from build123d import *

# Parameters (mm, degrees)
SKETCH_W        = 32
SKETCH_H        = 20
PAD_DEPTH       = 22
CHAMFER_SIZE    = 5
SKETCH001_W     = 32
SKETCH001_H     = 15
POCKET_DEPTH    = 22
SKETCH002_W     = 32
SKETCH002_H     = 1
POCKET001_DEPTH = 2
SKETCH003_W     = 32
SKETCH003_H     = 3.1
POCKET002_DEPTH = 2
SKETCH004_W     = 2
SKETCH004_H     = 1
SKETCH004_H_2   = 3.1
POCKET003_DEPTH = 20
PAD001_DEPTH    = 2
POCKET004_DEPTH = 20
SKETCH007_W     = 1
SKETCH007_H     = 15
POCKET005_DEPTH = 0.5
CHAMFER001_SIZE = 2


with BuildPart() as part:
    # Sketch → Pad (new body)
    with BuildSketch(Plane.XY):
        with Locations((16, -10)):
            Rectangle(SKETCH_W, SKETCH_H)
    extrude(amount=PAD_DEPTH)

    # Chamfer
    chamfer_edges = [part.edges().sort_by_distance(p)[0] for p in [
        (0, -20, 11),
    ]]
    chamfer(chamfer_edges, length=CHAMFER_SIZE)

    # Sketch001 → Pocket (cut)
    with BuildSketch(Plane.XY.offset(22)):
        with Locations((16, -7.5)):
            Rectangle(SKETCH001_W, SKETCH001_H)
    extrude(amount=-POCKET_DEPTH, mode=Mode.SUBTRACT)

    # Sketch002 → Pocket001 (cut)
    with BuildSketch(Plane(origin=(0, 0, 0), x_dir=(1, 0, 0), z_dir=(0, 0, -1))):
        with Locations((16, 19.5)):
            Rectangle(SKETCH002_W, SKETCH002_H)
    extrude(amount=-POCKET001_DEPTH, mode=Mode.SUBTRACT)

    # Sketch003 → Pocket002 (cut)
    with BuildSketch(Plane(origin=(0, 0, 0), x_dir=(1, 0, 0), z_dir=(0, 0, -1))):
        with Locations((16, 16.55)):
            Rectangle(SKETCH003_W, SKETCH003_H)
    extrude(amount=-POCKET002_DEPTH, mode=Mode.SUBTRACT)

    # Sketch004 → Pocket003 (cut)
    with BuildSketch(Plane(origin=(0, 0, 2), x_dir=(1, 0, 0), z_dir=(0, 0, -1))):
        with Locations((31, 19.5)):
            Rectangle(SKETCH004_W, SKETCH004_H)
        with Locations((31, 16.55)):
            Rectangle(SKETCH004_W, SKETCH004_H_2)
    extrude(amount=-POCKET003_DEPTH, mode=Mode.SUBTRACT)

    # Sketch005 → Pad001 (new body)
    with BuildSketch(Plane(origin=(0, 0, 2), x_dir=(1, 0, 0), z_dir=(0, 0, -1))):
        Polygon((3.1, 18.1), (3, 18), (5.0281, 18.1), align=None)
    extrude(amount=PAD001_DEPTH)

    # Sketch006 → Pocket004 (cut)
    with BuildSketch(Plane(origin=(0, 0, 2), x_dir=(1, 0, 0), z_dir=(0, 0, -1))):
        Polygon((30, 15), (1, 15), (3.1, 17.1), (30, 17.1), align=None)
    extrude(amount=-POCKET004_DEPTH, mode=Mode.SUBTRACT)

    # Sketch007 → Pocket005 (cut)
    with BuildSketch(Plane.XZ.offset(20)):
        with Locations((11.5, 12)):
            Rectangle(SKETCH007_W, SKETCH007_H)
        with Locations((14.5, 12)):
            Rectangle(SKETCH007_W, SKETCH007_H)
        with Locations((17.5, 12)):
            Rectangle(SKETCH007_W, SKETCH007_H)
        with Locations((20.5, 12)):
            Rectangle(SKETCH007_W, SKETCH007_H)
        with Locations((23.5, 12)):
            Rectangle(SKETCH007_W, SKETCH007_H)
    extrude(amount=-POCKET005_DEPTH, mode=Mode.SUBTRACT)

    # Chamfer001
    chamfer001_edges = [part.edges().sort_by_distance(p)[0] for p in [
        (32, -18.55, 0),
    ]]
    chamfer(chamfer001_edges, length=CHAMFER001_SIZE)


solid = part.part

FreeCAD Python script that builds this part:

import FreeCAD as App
import Part
import Sketcher
Q = App.Units.Quantity


def edges_at(feature, points):
    """Names of the edges that pass closest to the given points."""
    edges = feature.Shape.Edges
    near = lambda p: min(range(len(edges)), key=lambda i: edges[i].distToShape(Part.Vertex(*p))[0])
    return sorted({f"Edge{near(p) + 1}" for p in points})

doc = App.newDocument("Part")
body = doc.addObject("PartDesign::Body", "Body")

sketch1 = body.newObject("Sketcher::SketchObject", "Sketch")
sketch1.AttachmentSupport = (doc.getObject("XY_Plane"), [""])
sketch1.MapMode = "FlatFace"
sketch1.addGeometry([
    Part.LineSegment(App.Vector(0, 0, 0), App.Vector(0, -20, 0)),
    Part.LineSegment(App.Vector(0, -20, 0), App.Vector(32, -20, 0)),
    Part.LineSegment(App.Vector(32, -20, 0), App.Vector(32, 0, 0)),
    Part.LineSegment(App.Vector(32, 0, 0), App.Vector(0, 0, 0)),
], False)
sketch1.addConstraint([
    Sketcher.Constraint("Coincident", 0, 2, 1, 1),
    Sketcher.Constraint("Coincident", 1, 2, 2, 1),
    Sketcher.Constraint("Coincident", 2, 2, 3, 1),
    Sketcher.Constraint("Coincident", 3, 2, 0, 1),
    Sketcher.Constraint("Vertical", 0),
    Sketcher.Constraint("Horizontal", 1),
    Sketcher.Constraint("Vertical", 2),
    Sketcher.Constraint("Horizontal", 3),
    Sketcher.Constraint("Coincident", 3, 2, -1, 1),
    Sketcher.Constraint("DistanceX", 1, 1, 1, 2, Q("32 mm")),
    Sketcher.Constraint("DistanceY", 0, 2, 0, 1, Q("20 mm")),
])
pad1 = body.newObject("PartDesign::Pad", "Pad")
pad1.Profile = sketch1
pad1.Length = 22
doc.recompute()

chamfer = body.newObject("PartDesign::Chamfer", "Chamfer")
chamfer.Base = (pad1, edges_at(pad1, [(0, -20, 11)]))
chamfer.Size = 5

sketch2 = body.newObject("Sketcher::SketchObject", "Sketch001")
sketch2.AttachmentSupport = (doc.getObject("XY_Plane"), [""])
sketch2.MapMode = "FlatFace"
sketch2.AttachmentOffset = App.Placement(App.Vector(0, 0, 22), App.Rotation())
sketch2.addGeometry([
    Part.LineSegment(App.Vector(0, 0, 0), App.Vector(0, -15, 0)),
    Part.LineSegment(App.Vector(0, -15, 0), App.Vector(32, -15, 0)),
    Part.LineSegment(App.Vector(32, -15, 0), App.Vector(32, 0, 0)),
    Part.LineSegment(App.Vector(32, 0, 0), App.Vector(0, 0, 0)),
], False)
sketch2.addConstraint([
    Sketcher.Constraint("Coincident", 0, 2, 1, 1),
    Sketcher.Constraint("Coincident", 1, 2, 2, 1),
    Sketcher.Constraint("Coincident", 2, 2, 3, 1),
    Sketcher.Constraint("Coincident", 3, 2, 0, 1),
    Sketcher.Constraint("Vertical", 0),
    Sketcher.Constraint("Horizontal", 1),
    Sketcher.Constraint("Vertical", 2),
    Sketcher.Constraint("Horizontal", 3),
    Sketcher.Constraint("Coincident", 3, 2, -1, 1),
    Sketcher.Constraint("DistanceX", 1, 1, 1, 2, Q("32 mm")),
    Sketcher.Constraint("DistanceY", 0, 2, 0, 1, Q("15 mm")),
])
pocket1 = body.newObject("PartDesign::Pocket", "Pocket")
pocket1.Profile = sketch2
pocket1.Length = 22

sketch3 = body.newObject("Sketcher::SketchObject", "Sketch002")
sketch3.AttachmentSupport = (doc.getObject("XY_Plane"), [""])
sketch3.MapMode = "FlatFace"
sketch3.addGeometry([
    Part.LineSegment(App.Vector(0, -20, 0), App.Vector(0, -19, 0)),
    Part.LineSegment(App.Vector(0, -19, 0), App.Vector(32, -19, 0)),
    Part.LineSegment(App.Vector(32, -19, 0), App.Vector(32, -20, 0)),
    Part.LineSegment(App.Vector(32, -20, 0), App.Vector(0, -20, 0)),
], False)
sketch3.addConstraint([
    Sketcher.Constraint("Coincident", 0, 2, 1, 1),
    Sketcher.Constraint("Coincident", 1, 2, 2, 1),
    Sketcher.Constraint("Coincident", 2, 2, 3, 1),
    Sketcher.Constraint("Coincident", 3, 2, 0, 1),
    Sketcher.Constraint("Vertical", 0),
    Sketcher.Constraint("Horizontal", 1),
    Sketcher.Constraint("Vertical", 2),
    Sketcher.Constraint("Horizontal", 3),
    Sketcher.Constraint("PointOnObject", 0, 2, -2),
    Sketcher.Constraint("DistanceX", 1, 1, 1, 2, Q("32 mm")),
    Sketcher.Constraint("DistanceY", 0, 1, 0, 2, Q("1 mm")),
    Sketcher.Constraint("DistanceY", 0, 2, -1, 1, Q("19 mm")),
])
pocket2 = body.newObject("PartDesign::Pocket", "Pocket001")
pocket2.Profile = sketch3
pocket2.Length = 2
pocket2.Reversed = True

sketch4 = body.newObject("Sketcher::SketchObject", "Sketch003")
sketch4.AttachmentSupport = (doc.getObject("XY_Plane"), [""])
sketch4.MapMode = "FlatFace"
sketch4.addGeometry([
    Part.LineSegment(App.Vector(0, -18.1, 0), App.Vector(0, -15, 0)),
    Part.LineSegment(App.Vector(0, -15, 0), App.Vector(32, -15, 0)),
    Part.LineSegment(App.Vector(32, -15, 0), App.Vector(32, -18.1, 0)),
    Part.LineSegment(App.Vector(32, -18.1, 0), App.Vector(0, -18.1, 0)),
], False)
sketch4.addConstraint([
    Sketcher.Constraint("Coincident", 0, 2, 1, 1),
    Sketcher.Constraint("Coincident", 1, 2, 2, 1),
    Sketcher.Constraint("Coincident", 2, 2, 3, 1),
    Sketcher.Constraint("Coincident", 3, 2, 0, 1),
    Sketcher.Constraint("Vertical", 0),
    Sketcher.Constraint("Horizontal", 1),
    Sketcher.Constraint("Vertical", 2),
    Sketcher.Constraint("Horizontal", 3),
    Sketcher.Constraint("PointOnObject", 0, 2, -2),
    Sketcher.Constraint("DistanceX", 1, 1, 1, 2, Q("32 mm")),
    Sketcher.Constraint("DistanceY", 0, 1, 0, 2, Q("3.1 mm")),
    Sketcher.Constraint("DistanceY", 0, 2, -1, 1, Q("15 mm")),
])
pocket3 = body.newObject("PartDesign::Pocket", "Pocket002")
pocket3.Profile = sketch4
pocket3.Length = 2
pocket3.Reversed = True

sketch5 = body.newObject("Sketcher::SketchObject", "Sketch004")
sketch5.AttachmentSupport = (doc.getObject("XY_Plane"), [""])
sketch5.MapMode = "FlatFace"
sketch5.AttachmentOffset = App.Placement(App.Vector(0, 0, 2), App.Rotation())
sketch5.addGeometry([
    Part.LineSegment(App.Vector(30, -20, 0), App.Vector(30, -19, 0)),
    Part.LineSegment(App.Vector(30, -19, 0), App.Vector(32, -19, 0)),
    Part.LineSegment(App.Vector(32, -19, 0), App.Vector(32, -20, 0)),
    Part.LineSegment(App.Vector(32, -20, 0), App.Vector(30, -20, 0)),
    Part.LineSegment(App.Vector(30, -18.1, 0), App.Vector(30, -15, 0)),
    Part.LineSegment(App.Vector(30, -15, 0), App.Vector(32, -15, 0)),
    Part.LineSegment(App.Vector(32, -15, 0), App.Vector(32, -18.1, 0)),
    Part.LineSegment(App.Vector(32, -18.1, 0), App.Vector(30, -18.1, 0)),
], False)
sketch5.addConstraint([
    Sketcher.Constraint("Coincident", 0, 2, 1, 1),
    Sketcher.Constraint("Coincident", 1, 2, 2, 1),
    Sketcher.Constraint("Coincident", 2, 2, 3, 1),
    Sketcher.Constraint("Coincident", 3, 2, 0, 1),
    Sketcher.Constraint("Coincident", 4, 2, 5, 1),
    Sketcher.Constraint("Coincident", 5, 2, 6, 1),
    Sketcher.Constraint("Coincident", 6, 2, 7, 1),
    Sketcher.Constraint("Coincident", 7, 2, 4, 1),
    Sketcher.Constraint("Vertical", 0),
    Sketcher.Constraint("Horizontal", 1),
    Sketcher.Constraint("Vertical", 2),
    Sketcher.Constraint("Horizontal", 3),
    Sketcher.Constraint("Vertical", 4),
    Sketcher.Constraint("Horizontal", 5),
    Sketcher.Constraint("Vertical", 6),
    Sketcher.Constraint("Horizontal", 7),
    Sketcher.Constraint("Vertical", 3, 2, 4, 2),
    Sketcher.Constraint("Vertical", 2, 2, 5, 2),
    Sketcher.Constraint("DistanceX", 1, 1, 1, 2, Q("2 mm")),
    Sketcher.Constraint("DistanceY", 0, 1, 0, 2, Q("1 mm")),
    Sketcher.Constraint("DistanceY", 4, 1, 4, 2, Q("3.1 mm")),
    Sketcher.Constraint("DistanceX", -1, 1, 0, 2, Q("30 mm")),
    Sketcher.Constraint("DistanceY", 0, 2, -1, 1, Q("19 mm")),
    Sketcher.Constraint("DistanceY", 4, 2, -1, 1, Q("15 mm")),
])
pocket4 = body.newObject("PartDesign::Pocket", "Pocket003")
pocket4.Profile = sketch5
pocket4.Length = 20
pocket4.Reversed = True

sketch6 = body.newObject("Sketcher::SketchObject", "Sketch005")
sketch6.AttachmentSupport = (doc.getObject("XY_Plane"), [""])
sketch6.MapMode = "FlatFace"
sketch6.AttachmentOffset = App.Placement(App.Vector(0, 0, 2), App.Rotation())
sketch6.addGeometry([
    Part.LineSegment(App.Vector(3.1, -18.1, 0), App.Vector(3, -18, 0)),
    Part.LineSegment(App.Vector(3, -18, 0), App.Vector(5.03, -18.1, 0)),
    Part.LineSegment(App.Vector(5.03, -18.1, 0), App.Vector(3.1, -18.1, 0)),
], False)
sketch6.addConstraint([
    Sketcher.Constraint("Coincident", 0, 2, 1, 1),
    Sketcher.Constraint("Coincident", 1, 2, 2, 1),
    Sketcher.Constraint("Coincident", 2, 2, 0, 1),
    Sketcher.Constraint("Horizontal", 2),
    Sketcher.Constraint("Angle", 0, Q("135 deg")),
    Sketcher.Constraint("DistanceX", -1, 1, 0, 2, Q("3 mm")),
    Sketcher.Constraint("DistanceY", 0, 2, -1, 1, Q("18 mm")),
    Sketcher.Constraint("DistanceY", 1, 2, -1, 1, Q("18.1 mm")),
    Sketcher.Constraint("DistanceX", 2, 2, 2, 1, Q("1.9281 mm")),
])
pad2 = body.newObject("PartDesign::Pad", "Pad001")
pad2.Profile = sketch6
pad2.Length = 2
pad2.Reversed = True

sketch7 = body.newObject("Sketcher::SketchObject", "Sketch006")
sketch7.AttachmentSupport = (doc.getObject("XY_Plane"), [""])
sketch7.MapMode = "FlatFace"
sketch7.AttachmentOffset = App.Placement(App.Vector(0, 0, 2), App.Rotation())
sketch7.addGeometry([
    Part.LineSegment(App.Vector(1, -15, 0), App.Vector(30, -15, 0)),
    Part.LineSegment(App.Vector(30, -15, 0), App.Vector(30, -17.1, 0)),
    Part.LineSegment(App.Vector(30, -17.1, 0), App.Vector(3.1, -17.1, 0)),
    Part.LineSegment(App.Vector(3.1, -17.1, 0), App.Vector(1, -15, 0)),
], False)
sketch7.addConstraint([
    Sketcher.Constraint("Coincident", 0, 2, 1, 1),
    Sketcher.Constraint("Coincident", 1, 2, 2, 1),
    Sketcher.Constraint("Coincident", 2, 2, 3, 1),
    Sketcher.Constraint("Coincident", 3, 2, 0, 1),
    Sketcher.Constraint("Horizontal", 0),
    Sketcher.Constraint("Vertical", 1),
    Sketcher.Constraint("Horizontal", 2),
    Sketcher.Constraint("DistanceX", 0, 1, 0, 2, Q("29 mm")),
    Sketcher.Constraint("Angle", 3, Q("135 deg")),
    Sketcher.Constraint("DistanceX", 2, 2, 2, 1, Q("26.9 mm")),
    Sketcher.Constraint("DistanceX", -1, 1, 0, 2, Q("30 mm")),
    Sketcher.Constraint("DistanceY", 0, 2, -1, 1, Q("15 mm")),
])
pocket5 = body.newObject("PartDesign::Pocket", "Pocket004")
pocket5.Profile = sketch7
pocket5.Length = 20
pocket5.Reversed = True

sketch8 = body.newObject("Sketcher::SketchObject", "Sketch007")
sketch8.AttachmentSupport = (doc.getObject("XZ_Plane"), [""])
sketch8.MapMode = "FlatFace"
sketch8.AttachmentOffset = App.Placement(App.Vector(0, 0, 20), App.Rotation())
sketch8.addGeometry([
    Part.LineSegment(App.Vector(11, 19.5, 0), App.Vector(11, 4.5, 0)),
    Part.LineSegment(App.Vector(11, 4.5, 0), App.Vector(12, 4.5, 0)),
    Part.LineSegment(App.Vector(12, 4.5, 0), App.Vector(12, 19.5, 0)),
    Part.LineSegment(App.Vector(12, 19.5, 0), App.Vector(11, 19.5, 0)),
    Part.LineSegment(App.Vector(14, 19.5, 0), App.Vector(14, 4.5, 0)),
    Part.LineSegment(App.Vector(14, 4.5, 0), App.Vector(15, 4.5, 0)),
    Part.LineSegment(App.Vector(15, 4.5, 0), App.Vector(15, 19.5, 0)),
    Part.LineSegment(App.Vector(15, 19.5, 0), App.Vector(14, 19.5, 0)),
    Part.LineSegment(App.Vector(17, 19.5, 0), App.Vector(17, 4.5, 0)),
    Part.LineSegment(App.Vector(17, 4.5, 0), App.Vector(18, 4.5, 0)),
    Part.LineSegment(App.Vector(18, 4.5, 0), App.Vector(18, 19.5, 0)),
    Part.LineSegment(App.Vector(18, 19.5, 0), App.Vector(17, 19.5, 0)),
    Part.LineSegment(App.Vector(20, 19.5, 0), App.Vector(20, 4.5, 0)),
    Part.LineSegment(App.Vector(20, 4.5, 0), App.Vector(21, 4.5, 0)),
    Part.LineSegment(App.Vector(21, 4.5, 0), App.Vector(21, 19.5, 0)),
    Part.LineSegment(App.Vector(21, 19.5, 0), App.Vector(20, 19.5, 0)),
    Part.LineSegment(App.Vector(23, 19.5, 0), App.Vector(23, 4.5, 0)),
    Part.LineSegment(App.Vector(23, 4.5, 0), App.Vector(24, 4.5, 0)),
    Part.LineSegment(App.Vector(24, 4.5, 0), App.Vector(24, 19.5, 0)),
    Part.LineSegment(App.Vector(24, 19.5, 0), App.Vector(23, 19.5, 0)),
], False)
sketch8.addConstraint([
    Sketcher.Constraint("Coincident", 0, 2, 1, 1),
    Sketcher.Constraint("Coincident", 1, 2, 2, 1),
    Sketcher.Constraint("Coincident", 2, 2, 3, 1),
    Sketcher.Constraint("Coincident", 3, 2, 0, 1),
    Sketcher.Constraint("Coincident", 4, 2, 5, 1),
    Sketcher.Constraint("Coincident", 5, 2, 6, 1),
    Sketcher.Constraint("Coincident", 6, 2, 7, 1),
    Sketcher.Constraint("Coincident", 7, 2, 4, 1),
    Sketcher.Constraint("Coincident", 8, 2, 9, 1),
    Sketcher.Constraint("Coincident", 9, 2, 10, 1),
    Sketcher.Constraint("Coincident", 10, 2, 11, 1),
    Sketcher.Constraint("Coincident", 11, 2, 8, 1),
    Sketcher.Constraint("Coincident", 12, 2, 13, 1),
    Sketcher.Constraint("Coincident", 13, 2, 14, 1),
    Sketcher.Constraint("Coincident", 14, 2, 15, 1),
    Sketcher.Constraint("Coincident", 15, 2, 12, 1),
    Sketcher.Constraint("Coincident", 16, 2, 17, 1),
    Sketcher.Constraint("Coincident", 17, 2, 18, 1),
    Sketcher.Constraint("Coincident", 18, 2, 19, 1),
    Sketcher.Constraint("Coincident", 19, 2, 16, 1),
    Sketcher.Constraint("Vertical", 0),
    Sketcher.Constraint("Horizontal", 1),
    Sketcher.Constraint("Vertical", 2),
    Sketcher.Constraint("Horizontal", 3),
    Sketcher.Constraint("Vertical", 4),
    Sketcher.Constraint("Horizontal", 5),
    Sketcher.Constraint("Vertical", 6),
    Sketcher.Constraint("Horizontal", 7),
    Sketcher.Constraint("Vertical", 8),
    Sketcher.Constraint("Horizontal", 9),
    Sketcher.Constraint("Vertical", 10),
    Sketcher.Constraint("Horizontal", 11),
    Sketcher.Constraint("Vertical", 12),
    Sketcher.Constraint("Horizontal", 13),
    Sketcher.Constraint("Vertical", 14),
    Sketcher.Constraint("Horizontal", 15),
    Sketcher.Constraint("Vertical", 16),
    Sketcher.Constraint("Horizontal", 17),
    Sketcher.Constraint("Vertical", 18),
    Sketcher.Constraint("Horizontal", 19),
    Sketcher.Constraint("Horizontal", 1, 2, 4, 2),
    Sketcher.Constraint("Horizontal", 3, 2, 6, 2),
    Sketcher.Constraint("Horizontal", 5, 2, 8, 2),
    Sketcher.Constraint("Horizontal", 7, 2, 10, 2),
    Sketcher.Constraint("Horizontal", 9, 2, 12, 2),
    Sketcher.Constraint("Horizontal", 11, 2, 14, 2),
    Sketcher.Constraint("Horizontal", 13, 2, 16, 2),
    Sketcher.Constraint("Horizontal", 15, 2, 18, 2),
    Sketcher.Constraint("Equal", 3, 5),
    Sketcher.Constraint("Equal", 7, 9),
    Sketcher.Constraint("Equal", 11, 13),
    Sketcher.Constraint("Equal", 15, 17),
    Sketcher.Constraint("DistanceX", 1, 1, 1, 2, Q("1 mm")),
    Sketcher.Constraint("DistanceY", 0, 2, 0, 1, Q("15 mm")),
    Sketcher.Constraint("DistanceX", -1, 1, 0, 2, Q("11 mm")),
    Sketcher.Constraint("DistanceX", -1, 1, 4, 2, Q("14 mm")),
    Sketcher.Constraint("DistanceX", -1, 1, 8, 2, Q("17 mm")),
    Sketcher.Constraint("DistanceX", -1, 1, 12, 2, Q("20 mm")),
    Sketcher.Constraint("DistanceX", -1, 1, 16, 2, Q("23 mm")),
    Sketcher.Constraint("DistanceY", -1, 1, 0, 2, Q("4.5 mm")),
])
pocket6 = body.newObject("PartDesign::Pocket", "Pocket005")
pocket6.Profile = sketch8
pocket6.Length = 0.5
doc.recompute()

chamfer2 = body.newObject("PartDesign::Chamfer", "Chamfer001")
chamfer2.Base = (pocket6, edges_at(pocket6, [(32, -18.55, 0)]))
chamfer2.Size = 2

doc.recompute()
